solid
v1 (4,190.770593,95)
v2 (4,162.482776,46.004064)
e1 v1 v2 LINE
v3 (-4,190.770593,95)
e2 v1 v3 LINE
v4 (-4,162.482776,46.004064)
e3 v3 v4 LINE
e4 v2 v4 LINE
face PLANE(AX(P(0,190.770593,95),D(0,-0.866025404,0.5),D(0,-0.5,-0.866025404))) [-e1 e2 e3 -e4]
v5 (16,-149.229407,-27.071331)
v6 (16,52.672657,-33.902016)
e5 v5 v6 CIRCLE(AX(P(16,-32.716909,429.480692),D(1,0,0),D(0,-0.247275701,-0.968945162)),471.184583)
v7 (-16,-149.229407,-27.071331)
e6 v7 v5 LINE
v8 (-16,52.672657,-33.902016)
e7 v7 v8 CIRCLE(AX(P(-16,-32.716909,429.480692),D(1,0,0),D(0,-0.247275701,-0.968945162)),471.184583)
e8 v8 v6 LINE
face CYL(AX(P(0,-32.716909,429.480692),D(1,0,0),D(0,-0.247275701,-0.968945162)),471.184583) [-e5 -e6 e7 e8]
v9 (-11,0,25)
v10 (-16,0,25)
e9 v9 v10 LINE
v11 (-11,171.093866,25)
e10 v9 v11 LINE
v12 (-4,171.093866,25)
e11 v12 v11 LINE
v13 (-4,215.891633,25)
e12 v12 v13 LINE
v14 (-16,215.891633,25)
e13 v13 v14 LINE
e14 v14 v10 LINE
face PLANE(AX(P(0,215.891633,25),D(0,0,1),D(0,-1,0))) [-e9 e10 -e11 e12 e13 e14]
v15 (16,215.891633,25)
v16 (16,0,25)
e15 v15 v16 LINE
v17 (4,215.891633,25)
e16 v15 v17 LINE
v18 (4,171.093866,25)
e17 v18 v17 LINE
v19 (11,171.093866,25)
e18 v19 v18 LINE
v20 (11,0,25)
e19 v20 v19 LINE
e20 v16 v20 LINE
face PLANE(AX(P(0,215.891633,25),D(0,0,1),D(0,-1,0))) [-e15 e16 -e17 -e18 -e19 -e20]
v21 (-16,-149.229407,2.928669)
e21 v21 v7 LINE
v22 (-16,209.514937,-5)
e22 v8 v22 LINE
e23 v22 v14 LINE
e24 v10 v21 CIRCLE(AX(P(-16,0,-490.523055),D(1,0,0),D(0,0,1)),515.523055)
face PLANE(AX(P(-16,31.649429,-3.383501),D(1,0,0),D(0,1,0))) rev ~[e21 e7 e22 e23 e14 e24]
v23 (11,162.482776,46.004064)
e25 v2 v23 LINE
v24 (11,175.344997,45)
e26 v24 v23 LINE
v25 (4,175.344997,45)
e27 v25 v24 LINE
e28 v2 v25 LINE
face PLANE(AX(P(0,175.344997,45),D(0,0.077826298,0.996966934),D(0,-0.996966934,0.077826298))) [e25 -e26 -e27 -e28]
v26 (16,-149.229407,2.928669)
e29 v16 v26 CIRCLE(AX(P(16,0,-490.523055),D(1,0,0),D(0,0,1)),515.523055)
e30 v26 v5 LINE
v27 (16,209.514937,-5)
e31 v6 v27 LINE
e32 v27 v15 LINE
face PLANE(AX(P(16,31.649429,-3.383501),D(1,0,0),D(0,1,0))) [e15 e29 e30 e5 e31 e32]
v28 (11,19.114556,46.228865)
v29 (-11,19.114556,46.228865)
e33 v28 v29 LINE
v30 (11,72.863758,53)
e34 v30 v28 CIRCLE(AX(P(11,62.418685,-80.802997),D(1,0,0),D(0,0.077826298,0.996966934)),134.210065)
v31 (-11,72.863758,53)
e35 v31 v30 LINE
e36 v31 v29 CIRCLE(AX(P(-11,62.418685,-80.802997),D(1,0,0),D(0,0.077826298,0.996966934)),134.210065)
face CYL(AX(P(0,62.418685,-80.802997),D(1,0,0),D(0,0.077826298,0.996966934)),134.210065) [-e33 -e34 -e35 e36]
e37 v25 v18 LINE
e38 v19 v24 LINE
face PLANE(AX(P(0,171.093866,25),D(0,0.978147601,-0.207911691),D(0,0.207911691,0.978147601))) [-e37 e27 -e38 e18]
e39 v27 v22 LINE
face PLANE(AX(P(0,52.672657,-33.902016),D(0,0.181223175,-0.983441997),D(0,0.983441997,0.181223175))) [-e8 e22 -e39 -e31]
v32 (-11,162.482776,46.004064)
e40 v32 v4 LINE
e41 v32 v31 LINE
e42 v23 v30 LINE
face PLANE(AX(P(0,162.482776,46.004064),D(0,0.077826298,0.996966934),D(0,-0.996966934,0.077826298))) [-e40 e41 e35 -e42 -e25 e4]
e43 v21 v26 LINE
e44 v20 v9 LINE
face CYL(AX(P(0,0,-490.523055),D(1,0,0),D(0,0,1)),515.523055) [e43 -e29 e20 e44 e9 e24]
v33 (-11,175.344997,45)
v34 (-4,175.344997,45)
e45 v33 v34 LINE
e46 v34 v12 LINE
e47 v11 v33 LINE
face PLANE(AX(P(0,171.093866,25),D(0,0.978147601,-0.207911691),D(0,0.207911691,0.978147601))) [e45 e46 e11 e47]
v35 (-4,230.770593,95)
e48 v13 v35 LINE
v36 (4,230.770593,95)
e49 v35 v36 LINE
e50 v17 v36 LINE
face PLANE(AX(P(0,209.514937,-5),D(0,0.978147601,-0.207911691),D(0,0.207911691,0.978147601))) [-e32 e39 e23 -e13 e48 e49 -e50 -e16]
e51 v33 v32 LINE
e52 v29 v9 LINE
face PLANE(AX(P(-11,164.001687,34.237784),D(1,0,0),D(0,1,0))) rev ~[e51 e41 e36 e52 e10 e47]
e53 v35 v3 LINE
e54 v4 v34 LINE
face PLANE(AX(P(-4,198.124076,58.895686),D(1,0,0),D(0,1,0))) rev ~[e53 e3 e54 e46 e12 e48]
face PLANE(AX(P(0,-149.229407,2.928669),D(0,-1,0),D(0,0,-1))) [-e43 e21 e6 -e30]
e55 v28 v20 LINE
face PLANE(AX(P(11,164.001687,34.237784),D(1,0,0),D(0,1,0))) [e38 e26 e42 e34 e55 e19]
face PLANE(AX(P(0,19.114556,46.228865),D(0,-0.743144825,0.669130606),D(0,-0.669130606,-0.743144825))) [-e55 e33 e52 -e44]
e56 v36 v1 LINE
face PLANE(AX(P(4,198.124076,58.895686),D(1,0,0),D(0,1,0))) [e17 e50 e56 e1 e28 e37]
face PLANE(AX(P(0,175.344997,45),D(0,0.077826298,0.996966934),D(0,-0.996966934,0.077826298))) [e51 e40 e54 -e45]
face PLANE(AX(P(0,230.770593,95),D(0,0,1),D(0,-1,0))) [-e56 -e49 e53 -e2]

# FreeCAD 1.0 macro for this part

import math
import FreeCAD as App
import Part
import Sketcher
Q = App.Units.Quantity

doc = App.newDocument("Part")
params = doc.addObject("Spreadsheet::Sheet", "Params")
for row, (alias, value) in enumerate([
    ("sketch1_height", "30 mm"),
    ("pad1_length", "32 mm"),
    ("sketch2_width", "40 mm"),
    ("pad2_length", "8 mm"),
    ("pad3_length", "22 mm"),
], start=1):
    params.set(f"A{row}", alias)
    params.set(f"B{row}", "=" + value)
    params.setAlias(f"B{row}", alias)

body = doc.addObject("PartDesign::Body", "Body")

# Sketch on YZ plane
sketch1 = body.newObject("Sketcher::SketchObject", "Sketch")
sketch1.AttachmentSupport = (doc.getObject("YZ_Plane"), [""])
sketch1.MapMode = "FlatFace"
sketch1.addGeometry(Part.ArcOfCircle(Part.Circle(App.Vector(0, -491, 0), App.Vector(0, 0, 1), 516), math.radians(90), math.radians(106.83)), False)
sketch1.addGeometry(Part.LineSegment(App.Vector(-149, 3, 0), App.Vector(-149, -27, 0)), False)
sketch1.addGeometry(Part.ArcOfCircle(Part.Circle(App.Vector(-33, 429, 0), App.Vector(0, 0, 1), 471), math.radians(-104), math.radians(-80)), False)
sketch1.addGeometry(Part.LineSegment(App.Vector(53, -34, 0), App.Vector(210, -5, 0)), False)
sketch1.addGeometry(Part.LineSegment(App.Vector(210, -5, 0), App.Vector(216, 25, 0)), False)
sketch1.addGeometry(Part.LineSegment(App.Vector(216, 25, 0), App.Vector(0, 25, 0)), False)
sketch1.addConstraint(Sketcher.Constraint("Coincident", 0, 2, 1, 1))
sketch1.addConstraint(Sketcher.Constraint("Coincident", 1, 2, 2, 1))
sketch1.addConstraint(Sketcher.Constraint("Tangent", 2, 2, 3, 1))
sketch1.addConstraint(Sketcher.Constraint("Coincident", 3, 2, 4, 1))
sketch1.addConstraint(Sketcher.Constraint("Coincident", 4, 2, 5, 1))
sketch1.addConstraint(Sketcher.Constraint("Tangent", 5, 2, 0, 1))
sketch1.addConstraint(Sketcher.Constraint("Vertical", 1))
sketch1.addConstraint(Sketcher.Constraint("Horizontal", 5))
sketch1.addConstraint(Sketcher.Constraint("PointOnObject", 0, 3, -2))
sketch1.addConstraint(Sketcher.Constraint("DistanceY", 1, 2, 1, 1, 30.0))
sketch1.addConstraint(Sketcher.Constraint("Angle", 4, Q("78 deg")))
sketch1.addConstraint(Sketcher.Constraint("DistanceY", 3, 2, -1, 1, 5.0))
sketch1.addConstraint(Sketcher.Constraint("DistanceY", -1, 1, 4, 2, 25.0))
sketch1.addConstraint(Sketcher.Constraint("Distance", 3, 159.483))
sketch1.addConstraint(Sketcher.Constraint("Radius", 0, 515.523055))
sketch1.addConstraint(Sketcher.Constraint("Radius", 2, 471.184583))
sketch1.addConstraint(Sketcher.Constraint("DistanceX", 1, 2, 2, 3, 116.512498))
sketch1.addConstraint(Sketcher.Constraint("DistanceX", 5, 2, 5, 1, 215.891633))
sketch1.setExpression("Constraints[9]", "Params.sketch1_height")
pad1 = body.newObject("PartDesign::Pad", "Pad")
pad1.Profile = sketch1
pad1.setExpression("Length", "Params.pad1_length")
pad1.Midplane = True

# Sketch on YZ plane
sketch2 = body.newObject("Sketcher::SketchObject", "Sketch001")
sketch2.AttachmentSupport = (doc.getObject("YZ_Plane"), [""])
sketch2.MapMode = "FlatFace"
sketch2.addGeometry(Part.LineSegment(App.Vector(175, 45, 0), App.Vector(171, 25, 0)), False)
sketch2.addGeometry(Part.LineSegment(App.Vector(171, 25, 0), App.Vector(216, 25, 0)), False)
sketch2.addGeometry(Part.LineSegment(App.Vector(216, 25, 0), App.Vector(231, 95, 0)), False)
sketch2.addGeometry(Part.LineSegment(App.Vector(231, 95, 0), App.Vector(191, 95, 0)), False)
sketch2.addGeometry(Part.LineSegment(App.Vector(191, 95, 0), App.Vector(162, 46, 0)), False)
sketch2.addGeometry(Part.LineSegment(App.Vector(162, 46, 0), App.Vector(175, 45, 0)), False)
sketch2.addConstraint(Sketcher.Constraint("Coincident", 0, 2, 1, 1))
sketch2.addConstraint(Sketcher.Constraint("Coincident", 1, 2, 2, 1))
sketch2.addConstraint(Sketcher.Constraint("Coincident", 2, 2, 3, 1))
sketch2.addConstraint(Sketcher.Constraint("Coincident", 3, 2, 4, 1))
sketch2.addConstraint(Sketcher.Constraint("Coincident", 4, 2, 5, 1))
sketch2.addConstraint(Sketcher.Constraint("Coincident", 5, 2, 0, 1))
sketch2.addConstraint(Sketcher.Constraint("Horizontal", 1))
sketch2.addConstraint(Sketcher.Constraint("Horizontal", 3))
sketch2.addConstraint(Sketcher.Constraint("Parallel", 0, 2))
sketch2.addConstraint(Sketcher.Constraint("DistanceX", 3, 2, 3, 1, 40.0))
sketch2.addConstraint(Sketcher.Constraint("Angle", 0, Q("-102 deg")))
sketch2.addConstraint(Sketcher.Constraint("Angle", 4, Q("-120 deg")))
sketch2.addConstraint(Sketcher.Constraint("DistanceY", -1, 1, 0, 2, 25.0))
sketch2.addConstraint(Sketcher.Constraint("DistanceY", -1, 1, 2, 2, 95.0))
sketch2.addConstraint(Sketcher.Constraint("DistanceY", -1, 1, 5, 2, 45.0))
sketch2.addConstraint(Sketcher.Constraint("Distance", 5, 12.901352))
sketch2.addConstraint(Sketcher.Constraint("DistanceX", 1, 1, 1, 2, 44.797767))
sketch2.addConstraint(Sketcher.Constraint("DistanceX", -1, 1, 0, 2, 171.093866))
sketch2.setExpression("Constraints[9]", "Params.sketch2_width")
pad2 = body.newObject("PartDesign::Pad", "Pad001")
pad2.Profile = sketch2
pad2.setExpression("Length", "Params.pad2_length")
pad2.Midplane = True

# Sketch on YZ plane
sketch3 = body.newObject("Sketcher::SketchObject", "Sketch002")
sketch3.AttachmentSupport = (doc.getObject("YZ_Plane"), [""])
sketch3.MapMode = "FlatFace"
sketch3.addGeometry(Part.LineSegment(App.Vector(171, 25, 0), App.Vector(175, 45, 0)), False)
sketch3.addGeometry(Part.LineSegment(App.Vector(175, 45, 0), App.Vector(162, 46, 0)), False)
sketch3.addGeometry(Part.LineSegment(App.Vector(162, 46, 0), App.Vector(73, 53, 0)), False)
sketch3.addGeometry(Part.ArcOfCircle(Part.Circle(App.Vector(62, -81, 0), App.Vector(0, 0, 1), 134), math.radians(86), math.radians(109)), False)
sketch3.addGeometry(Part.LineSegment(App.Vector(19, 46, 0), App.Vector(0, 25, 0)), False)
sketch3.addGeometry(Part.LineSegment(App.Vector(0, 25, 0), App.Vector(171, 25, 0)), False)
sketch3.addConstraint(Sketcher.Constraint("Coincident", 0, 2, 1, 1))
sketch3.addConstraint(Sketcher.Constraint("Coincident", 1, 2, 2, 1))
sketch3.addConstraint(Sketcher.Constraint("Tangent", 2, 2, 3, 1))
sketch3.addConstraint(Sketcher.Constraint("Coincident", 3, 2, 4, 1))
sketch3.addConstraint(Sketcher.Constraint("Coincident", 4, 2, 5, 1))
sketch3.addConstraint(Sketcher.Constraint("Coincident", 5, 2, 0, 1))
sketch3.addConstraint(Sketcher.Constraint("Horizontal", 5))
sketch3.addConstraint(Sketcher.Constraint("PointOnObject", 4, 2, -2))
sketch3.addConstraint(Sketcher.Constraint("Parallel", 1, 2))
sketch3.addConstraint(Sketcher.Constraint("Angle", 0, Q("78 deg")))
sketch3.addConstraint(Sketcher.Constraint("Angle", 4, Q("-132 deg")))
sketch3.addConstraint(Sketcher.Constraint("DistanceY", -1, 1, 0, 2, 45.0))
sketch3.addConstraint(Sketcher.Constraint("DistanceY", -1, 1, 2, 2, 53.0))
sketch3.addConstraint(Sketcher.Constraint("DistanceY", -1, 1, 4, 2, 25.0))
sketch3.addConstraint(Sketcher.Constraint("Radius", 3, 134.210065))
sketch3.addConstraint(Sketcher.Constraint("DistanceX", 3, 2, 2, 2, 53.749202))
sketch3.addConstraint(Sketcher.Constraint("Distance", 1, 12.901352))
sketch3.addConstraint(Sketcher.Constraint("DistanceX", 5, 1, 5, 2, 171.093866))
pad3 = body.newObject("PartDesign::Pad", "Pad002")
pad3.Profile = sketch3
pad3.setExpression("Length", "Params.pad3_length")
pad3.Midplane = True

doc.recompute()
